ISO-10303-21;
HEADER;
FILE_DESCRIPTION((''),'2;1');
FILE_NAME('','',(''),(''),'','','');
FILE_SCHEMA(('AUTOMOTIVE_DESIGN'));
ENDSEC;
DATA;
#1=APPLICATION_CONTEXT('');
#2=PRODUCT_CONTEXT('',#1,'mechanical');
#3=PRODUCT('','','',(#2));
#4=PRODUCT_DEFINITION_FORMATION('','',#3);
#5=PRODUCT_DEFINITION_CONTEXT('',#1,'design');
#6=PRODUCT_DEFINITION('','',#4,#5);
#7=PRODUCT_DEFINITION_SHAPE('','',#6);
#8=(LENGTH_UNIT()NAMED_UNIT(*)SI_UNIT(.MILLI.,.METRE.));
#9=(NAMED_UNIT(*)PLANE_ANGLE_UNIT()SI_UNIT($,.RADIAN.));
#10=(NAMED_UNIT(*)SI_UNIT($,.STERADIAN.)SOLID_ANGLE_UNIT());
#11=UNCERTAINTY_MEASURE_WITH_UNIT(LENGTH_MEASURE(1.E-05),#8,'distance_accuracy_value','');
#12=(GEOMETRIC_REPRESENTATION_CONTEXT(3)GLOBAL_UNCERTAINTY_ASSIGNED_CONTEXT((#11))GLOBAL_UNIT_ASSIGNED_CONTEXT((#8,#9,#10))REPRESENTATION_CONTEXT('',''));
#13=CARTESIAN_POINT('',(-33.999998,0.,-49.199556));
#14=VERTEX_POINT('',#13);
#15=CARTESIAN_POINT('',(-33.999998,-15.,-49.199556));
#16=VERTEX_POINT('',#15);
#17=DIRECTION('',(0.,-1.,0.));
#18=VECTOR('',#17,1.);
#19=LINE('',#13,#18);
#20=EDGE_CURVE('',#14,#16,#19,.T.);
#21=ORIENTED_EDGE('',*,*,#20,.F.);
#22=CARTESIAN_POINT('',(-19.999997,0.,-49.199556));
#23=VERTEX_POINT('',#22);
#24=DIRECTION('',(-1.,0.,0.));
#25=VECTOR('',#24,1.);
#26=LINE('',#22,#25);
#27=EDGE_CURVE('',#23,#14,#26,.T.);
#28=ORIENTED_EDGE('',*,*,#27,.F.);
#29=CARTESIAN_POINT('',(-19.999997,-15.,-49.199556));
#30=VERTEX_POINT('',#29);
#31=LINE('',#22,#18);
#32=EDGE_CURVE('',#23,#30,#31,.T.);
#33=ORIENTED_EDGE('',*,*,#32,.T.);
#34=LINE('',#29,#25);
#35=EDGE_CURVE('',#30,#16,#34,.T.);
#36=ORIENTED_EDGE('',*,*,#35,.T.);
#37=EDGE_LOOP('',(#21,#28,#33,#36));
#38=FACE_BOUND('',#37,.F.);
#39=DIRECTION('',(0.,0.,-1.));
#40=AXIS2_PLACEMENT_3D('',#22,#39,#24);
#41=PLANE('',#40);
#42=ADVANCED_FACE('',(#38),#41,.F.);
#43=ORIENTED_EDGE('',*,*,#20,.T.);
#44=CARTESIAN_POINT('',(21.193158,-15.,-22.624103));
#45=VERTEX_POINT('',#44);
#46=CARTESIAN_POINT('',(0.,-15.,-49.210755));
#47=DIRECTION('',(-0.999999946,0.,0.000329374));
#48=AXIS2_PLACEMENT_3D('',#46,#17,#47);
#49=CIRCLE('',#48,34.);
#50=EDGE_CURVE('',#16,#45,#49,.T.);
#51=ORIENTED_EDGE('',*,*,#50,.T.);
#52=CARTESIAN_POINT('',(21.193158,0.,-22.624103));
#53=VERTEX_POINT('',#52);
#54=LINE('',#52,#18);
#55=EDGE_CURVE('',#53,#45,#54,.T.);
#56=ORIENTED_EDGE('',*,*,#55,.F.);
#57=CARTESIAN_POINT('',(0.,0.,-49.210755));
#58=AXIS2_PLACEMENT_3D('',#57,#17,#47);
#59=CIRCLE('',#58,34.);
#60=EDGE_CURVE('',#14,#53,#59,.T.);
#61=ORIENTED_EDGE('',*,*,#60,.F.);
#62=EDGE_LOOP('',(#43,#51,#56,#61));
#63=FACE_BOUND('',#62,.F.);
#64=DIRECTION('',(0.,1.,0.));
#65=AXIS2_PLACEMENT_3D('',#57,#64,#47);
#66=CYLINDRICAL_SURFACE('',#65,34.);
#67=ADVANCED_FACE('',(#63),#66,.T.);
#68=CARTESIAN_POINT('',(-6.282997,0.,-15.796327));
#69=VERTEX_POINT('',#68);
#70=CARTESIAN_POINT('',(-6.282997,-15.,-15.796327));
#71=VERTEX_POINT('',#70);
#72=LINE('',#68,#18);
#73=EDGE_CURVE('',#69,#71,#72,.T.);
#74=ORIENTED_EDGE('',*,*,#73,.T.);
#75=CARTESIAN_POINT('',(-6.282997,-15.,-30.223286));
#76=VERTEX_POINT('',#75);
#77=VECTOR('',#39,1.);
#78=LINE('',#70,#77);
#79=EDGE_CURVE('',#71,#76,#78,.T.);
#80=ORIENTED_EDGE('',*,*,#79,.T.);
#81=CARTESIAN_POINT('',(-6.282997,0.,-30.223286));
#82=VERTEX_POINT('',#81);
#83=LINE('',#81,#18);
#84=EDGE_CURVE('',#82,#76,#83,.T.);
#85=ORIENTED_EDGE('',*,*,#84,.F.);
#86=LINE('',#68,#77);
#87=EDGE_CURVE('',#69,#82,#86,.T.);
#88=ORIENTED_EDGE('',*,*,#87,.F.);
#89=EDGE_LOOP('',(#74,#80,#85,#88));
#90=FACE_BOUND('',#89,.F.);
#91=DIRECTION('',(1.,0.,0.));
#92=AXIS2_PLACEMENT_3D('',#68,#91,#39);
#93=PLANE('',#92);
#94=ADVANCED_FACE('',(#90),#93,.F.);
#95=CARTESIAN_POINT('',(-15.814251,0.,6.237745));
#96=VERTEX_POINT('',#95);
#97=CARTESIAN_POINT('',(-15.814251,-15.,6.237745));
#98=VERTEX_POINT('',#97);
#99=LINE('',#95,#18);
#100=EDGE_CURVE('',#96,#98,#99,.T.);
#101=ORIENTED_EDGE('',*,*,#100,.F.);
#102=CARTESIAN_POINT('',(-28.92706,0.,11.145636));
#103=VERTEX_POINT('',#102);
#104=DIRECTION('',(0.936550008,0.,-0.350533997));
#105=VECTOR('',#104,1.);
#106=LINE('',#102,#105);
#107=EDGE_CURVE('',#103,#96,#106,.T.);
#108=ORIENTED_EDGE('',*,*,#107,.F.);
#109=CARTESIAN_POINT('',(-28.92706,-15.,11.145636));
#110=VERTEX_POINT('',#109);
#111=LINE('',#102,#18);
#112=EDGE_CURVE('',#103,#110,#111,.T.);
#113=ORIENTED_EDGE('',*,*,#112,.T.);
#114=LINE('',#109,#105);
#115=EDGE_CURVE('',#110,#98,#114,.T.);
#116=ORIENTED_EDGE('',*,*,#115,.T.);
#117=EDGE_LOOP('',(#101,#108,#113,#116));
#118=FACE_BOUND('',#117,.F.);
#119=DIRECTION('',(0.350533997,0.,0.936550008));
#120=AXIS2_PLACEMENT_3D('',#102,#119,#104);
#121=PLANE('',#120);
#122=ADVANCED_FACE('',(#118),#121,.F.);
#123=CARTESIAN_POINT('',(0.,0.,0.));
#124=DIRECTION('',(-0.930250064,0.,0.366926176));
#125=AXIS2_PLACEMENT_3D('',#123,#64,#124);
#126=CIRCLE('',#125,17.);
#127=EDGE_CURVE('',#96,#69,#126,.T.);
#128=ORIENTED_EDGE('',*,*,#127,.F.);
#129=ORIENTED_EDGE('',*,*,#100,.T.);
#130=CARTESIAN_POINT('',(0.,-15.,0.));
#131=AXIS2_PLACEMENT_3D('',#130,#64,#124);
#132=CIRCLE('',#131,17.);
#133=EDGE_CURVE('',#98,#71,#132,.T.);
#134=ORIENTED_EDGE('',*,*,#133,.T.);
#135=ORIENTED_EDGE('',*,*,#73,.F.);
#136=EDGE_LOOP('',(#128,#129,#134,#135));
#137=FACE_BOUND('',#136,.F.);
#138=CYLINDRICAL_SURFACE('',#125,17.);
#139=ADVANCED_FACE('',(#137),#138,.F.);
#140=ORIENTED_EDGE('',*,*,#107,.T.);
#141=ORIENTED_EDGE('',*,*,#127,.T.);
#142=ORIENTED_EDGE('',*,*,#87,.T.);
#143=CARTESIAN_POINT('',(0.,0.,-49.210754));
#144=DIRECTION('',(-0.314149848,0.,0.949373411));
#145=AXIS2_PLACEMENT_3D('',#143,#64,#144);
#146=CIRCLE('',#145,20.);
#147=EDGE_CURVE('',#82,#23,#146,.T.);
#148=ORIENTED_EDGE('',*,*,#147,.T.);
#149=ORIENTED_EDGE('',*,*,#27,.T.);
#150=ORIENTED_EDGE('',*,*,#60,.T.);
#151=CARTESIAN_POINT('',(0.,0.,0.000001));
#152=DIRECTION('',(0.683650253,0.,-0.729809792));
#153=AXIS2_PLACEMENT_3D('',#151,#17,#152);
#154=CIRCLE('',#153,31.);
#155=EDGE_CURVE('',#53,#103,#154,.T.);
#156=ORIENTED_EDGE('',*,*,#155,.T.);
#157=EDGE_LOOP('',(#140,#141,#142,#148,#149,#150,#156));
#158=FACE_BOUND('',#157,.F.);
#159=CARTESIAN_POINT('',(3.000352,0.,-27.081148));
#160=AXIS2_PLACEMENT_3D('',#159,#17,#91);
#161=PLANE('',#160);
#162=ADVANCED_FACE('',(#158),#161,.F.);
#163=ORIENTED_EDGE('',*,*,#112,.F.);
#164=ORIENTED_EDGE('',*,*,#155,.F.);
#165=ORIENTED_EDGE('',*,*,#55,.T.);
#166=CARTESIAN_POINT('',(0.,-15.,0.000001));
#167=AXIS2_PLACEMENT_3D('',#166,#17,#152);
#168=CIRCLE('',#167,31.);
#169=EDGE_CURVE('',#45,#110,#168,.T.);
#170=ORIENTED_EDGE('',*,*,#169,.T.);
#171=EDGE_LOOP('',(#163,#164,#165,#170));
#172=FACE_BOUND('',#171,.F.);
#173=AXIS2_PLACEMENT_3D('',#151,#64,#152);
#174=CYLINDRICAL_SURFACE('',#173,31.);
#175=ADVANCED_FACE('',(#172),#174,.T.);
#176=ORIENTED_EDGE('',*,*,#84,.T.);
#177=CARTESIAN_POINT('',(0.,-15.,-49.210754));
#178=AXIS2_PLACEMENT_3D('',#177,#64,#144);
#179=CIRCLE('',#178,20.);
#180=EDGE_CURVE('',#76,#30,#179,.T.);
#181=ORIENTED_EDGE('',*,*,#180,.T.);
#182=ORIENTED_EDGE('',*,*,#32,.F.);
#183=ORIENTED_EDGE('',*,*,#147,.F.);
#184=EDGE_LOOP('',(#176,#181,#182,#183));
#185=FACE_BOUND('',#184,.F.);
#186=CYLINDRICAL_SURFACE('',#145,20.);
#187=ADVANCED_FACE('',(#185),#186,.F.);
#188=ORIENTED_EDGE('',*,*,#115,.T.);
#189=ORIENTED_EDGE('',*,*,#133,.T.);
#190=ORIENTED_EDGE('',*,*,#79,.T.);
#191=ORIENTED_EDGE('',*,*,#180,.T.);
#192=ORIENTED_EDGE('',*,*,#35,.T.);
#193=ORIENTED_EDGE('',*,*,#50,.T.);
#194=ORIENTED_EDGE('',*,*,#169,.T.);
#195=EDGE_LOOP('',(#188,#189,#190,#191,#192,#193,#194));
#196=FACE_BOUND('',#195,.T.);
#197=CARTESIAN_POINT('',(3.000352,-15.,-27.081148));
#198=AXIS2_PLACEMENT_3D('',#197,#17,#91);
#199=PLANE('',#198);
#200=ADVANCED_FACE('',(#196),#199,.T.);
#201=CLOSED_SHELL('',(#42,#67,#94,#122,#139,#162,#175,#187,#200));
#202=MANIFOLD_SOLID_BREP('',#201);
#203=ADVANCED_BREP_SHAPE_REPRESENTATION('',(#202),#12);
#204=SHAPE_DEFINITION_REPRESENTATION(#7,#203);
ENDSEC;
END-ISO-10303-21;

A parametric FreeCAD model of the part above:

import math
import FreeCAD as App
import Part
import Sketcher
Q = App.Units.Quantity

doc = App.newDocument("Part")
body = doc.addObject("PartDesign::Body", "Body")

# Sketch on XZ plane
sketch1 = body.newObject("Sketcher::SketchObject", "Sketch")
sketch1.AttachmentSupport = (doc.getObject("XZ_Plane"), [""])
sketch1.MapMode = "FlatFace"
sketch1.addGeometry(Part.ArcOfCircle(Part.Circle(App.Vector(0, -49, 0), App.Vector(0, 0, 1), 34), math.radians(180), math.radians(411)), False)
sketch1.addGeometry(Part.ArcOfCircle(Part.Circle(App.Vector(0, 0, 0), App.Vector(0, 0, 1), 31), math.radians(-47), math.radians(159)), False)
sketch1.addGeometry(Part.LineSegment(App.Vector(-29, 11, 0), App.Vector(-16, 6, 0)), False)
sketch1.addGeometry(Part.ArcOfCircle(Part.Circle(App.Vector(0, 0, 0), App.Vector(0, 0, 1), 17), math.radians(-112), math.radians(158)), False)
sketch1.addGeometry(Part.LineSegment(App.Vector(-6, -16, 0), App.Vector(-6, -30, 0)), False)
sketch1.addGeometry(Part.ArcOfCircle(Part.Circle(App.Vector(0, -49, 0), App.Vector(0, 0, 1), 20), math.radians(180), math.radians(468)), False)
sketch1.addGeometry(Part.LineSegment(App.Vector(-20, -49, 0), App.Vector(-34, -49, 0)), False)
sketch1.addConstraint(Sketcher.Constraint("Coincident", 0, 2, 1, 1))
sketch1.addConstraint(Sketcher.Constraint("Coincident", 1, 2, 2, 1))
sketch1.addConstraint(Sketcher.Constraint("Coincident", 2, 2, 3, 2))
sketch1.addConstraint(Sketcher.Constraint("Coincident", 3, 1, 4, 1))
sketch1.addConstraint(Sketcher.Constraint("Coincident", 4, 2, 5, 2))
sketch1.addConstraint(Sketcher.Constraint("Coincident", 5, 1, 6, 1))
sketch1.addConstraint(Sketcher.Constraint("Coincident", 6, 2, 0, 1))
sketch1.addConstraint(Sketcher.Constraint("Vertical", 4))
sketch1.addConstraint(Sketcher.Constraint("Horizontal", 6))
sketch1.addConstraint(Sketcher.Constraint("Coincident", 1, 3, -1, 1))
sketch1.addConstraint(Sketcher.Constraint("Coincident", 3, 3, -1, 1))
sketch1.addConstraint(Sketcher.Constraint("Coincident", 5, 3, 0, 3))
sketch1.addConstraint(Sketcher.Constraint("PointOnObject", 0, 3, -2))
sketch1.addConstraint(Sketcher.Constraint("Radius", 0, Q("34 mm")))
sketch1.addConstraint(Sketcher.Constraint("Radius", 1, Q("31 mm")))
sketch1.addConstraint(Sketcher.Constraint("Radius", 3, Q("17 mm")))
sketch1.addConstraint(Sketcher.Constraint("Radius", 5, Q("20 mm")))
sketch1.addConstraint(Sketcher.Constraint("Angle", 2, Q("-20.51998 deg")))
sketch1.addConstraint(Sketcher.Constraint("DistanceX", 5, 1, 4, 2, Q("13.717 mm")))
sketch1.addConstraint(Sketcher.Constraint("DistanceY", 4, 2, 4, 1, Q("14.426959 mm")))
sketch1.addConstraint(Sketcher.Constraint("DistanceY", 5, 3, 2, 2, Q("55.448499 mm")))
sketch1.addConstraint(Sketcher.Constraint("DistanceY", 5, 3, 5, 1, Q("0.011198 mm")))
pad1 = body.newObject("PartDesign::Pad", "Pad")
pad1.Profile = sketch1
pad1.Length = 15

doc.recompute()
